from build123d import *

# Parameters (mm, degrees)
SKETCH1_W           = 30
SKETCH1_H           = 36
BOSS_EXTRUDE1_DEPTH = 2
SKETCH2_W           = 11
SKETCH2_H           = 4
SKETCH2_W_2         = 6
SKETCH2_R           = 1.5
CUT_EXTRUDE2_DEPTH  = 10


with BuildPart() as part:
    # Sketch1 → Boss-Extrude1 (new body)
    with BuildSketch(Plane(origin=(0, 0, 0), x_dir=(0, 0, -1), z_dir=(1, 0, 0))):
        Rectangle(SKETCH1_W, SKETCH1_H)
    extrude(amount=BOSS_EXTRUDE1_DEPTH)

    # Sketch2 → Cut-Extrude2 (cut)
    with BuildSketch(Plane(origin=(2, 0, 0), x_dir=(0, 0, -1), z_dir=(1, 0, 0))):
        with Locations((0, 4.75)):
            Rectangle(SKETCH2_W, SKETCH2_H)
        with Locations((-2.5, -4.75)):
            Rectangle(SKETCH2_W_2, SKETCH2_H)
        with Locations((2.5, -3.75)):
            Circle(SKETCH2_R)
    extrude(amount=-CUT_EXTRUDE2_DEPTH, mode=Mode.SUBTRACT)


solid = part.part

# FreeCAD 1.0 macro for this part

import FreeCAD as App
import Part
import Sketcher

V = App.Vector

doc = App.newDocument("Part")
params = doc.addObject("Spreadsheet::Sheet", "Params")
for row, (alias, value) in enumerate([
    ("sketch1_width", "36 mm"),
    ("sketch1_height", "30 mm"),
    ("pad1_length", "2 mm"),
    ("sketch2_diameter", "3 mm"),
    ("sketch2_width", "4 mm"),
    ("sketch2_height", "11 mm"),
    ("sketch2_height2", "6 mm"),
    ("pocket1_length", "10 mm"),
], start=1):
    params.set(f"A{row}", alias)
    params.set(f"B{row}", "=" + value)
    params.setAlias(f"B{row}", alias)

body = doc.addObject("PartDesign::Body", "Body")

# Sketch on YZ plane
sketch1 = doc.addObject("Sketcher::SketchObject", "Sketch")
body.addObject(sketch1)
sketch1.AttachmentSupport = (doc.YZ_Plane, [""])
sketch1.MapMode = "FlatFace"
sketch1.addGeometry(Part.LineSegment(V(18, 15, 0), V(-18, 15, 0)), False)
sketch1.addGeometry(Part.LineSegment(V(-18, 15, 0), V(-18, -15, 0)), False)
sketch1.addGeometry(Part.LineSegment(V(-18, -15, 0), V(18, -15, 0)), False)
sketch1.addGeometry(Part.LineSegment(V(18, -15, 0), V(18, 15, 0)), False)
sketch1.addConstraint(Sketcher.Constraint("Coincident", 0, 2, 1, 1))
sketch1.addConstraint(Sketcher.Constraint("Coincident", 1, 2, 2, 1))
sketch1.addConstraint(Sketcher.Constraint("Coincident", 2, 2, 3, 1))
sketch1.addConstraint(Sketcher.Constraint("Coincident", 3, 2, 0, 1))
sketch1.addConstraint(Sketcher.Constraint("Horizontal", 0))
sketch1.addConstraint(Sketcher.Constraint("Vertical", 1))
sketch1.addConstraint(Sketcher.Constraint("Horizontal", 2))
sketch1.addConstraint(Sketcher.Constraint("Vertical", 3))
sketch1.addConstraint(Sketcher.Constraint("Symmetric", 0, 2, 2, 2, -1, 1))
sketch1.addConstraint(Sketcher.Constraint("DistanceX", 0, 2, 0, 1, 36.0))
sketch1.addConstraint(Sketcher.Constraint("DistanceY", 1, 2, 1, 1, 30.0))
sketch1.setExpression("Constraints[9]", "Params.sketch1_width")
sketch1.setExpression("Constraints[10]", "Params.sketch1_height")
pad1 = doc.addObject("PartDesign::Pad", "Pad")
body.addObject(pad1)
pad1.Profile = sketch1
pad1.setExpression("Length", "Params.pad1_length")

# Sketch on YZ plane
sketch2 = doc.addObject("Sketcher::SketchObject", "Sketch001")
body.addObject(sketch2)
sketch2.AttachmentSupport = (doc.YZ_Plane, [""])
sketch2.MapMode = "FlatFace"
sketch2.AttachmentOffset = App.Placement(V(0, 0, 2), App.Rotation())
sketch2.addGeometry(Part.LineSegment(V(6.8, 5.5, 0), V(2.8, 5.5, 0)), False)
sketch2.addGeometry(Part.LineSegment(V(2.8, 5.5, 0), V(2.8, -5.5, 0)), False)
sketch2.addGeometry(Part.LineSegment(V(2.8, -5.5, 0), V(6.8, -5.5, 0)), False)
sketch2.addGeometry(Part.LineSegment(V(6.8, -5.5, 0), V(6.8, 5.5, 0)), False)
sketch2.addGeometry(Part.LineSegment(V(-2.8, 5.5, 0), V(-6.8, 5.5, 0)), False)
sketch2.addGeometry(Part.LineSegment(V(-6.8, 5.5, 0), V(-6.8, -0.5, 0)), False)
sketch2.addGeometry(Part.LineSegment(V(-6.8, -0.5, 0), V(-2.8, -0.5, 0)), False)
sketch2.addGeometry(Part.LineSegment(V(-2.8, -0.5, 0), V(-2.8, 5.5, 0)), False)
sketch2.addGeometry(Part.Circle(V(-3.8, -2.5, 0), V(0, 0, 1), 1.5), False)
sketch2.addConstraint(Sketcher.Constraint("Coincident", 0, 2, 1, 1))
sketch2.addConstraint(Sketcher.Constraint("Coincident", 1, 2, 2, 1))
sketch2.addConstraint(Sketcher.Constraint("Coincident", 2, 2, 3, 1))
sketch2.addConstraint(Sketcher.Constraint("Coincident", 3, 2, 0, 1))
sketch2.addConstraint(Sketcher.Constraint("Coincident", 4, 2, 5, 1))
sketch2.addConstraint(Sketcher.Constraint("Coincident", 5, 2, 6, 1))
sketch2.addConstraint(Sketcher.Constraint("Coincident", 6, 2, 7, 1))
sketch2.addConstraint(Sketcher.Constraint("Coincident", 7, 2, 4, 1))
sketch2.addConstraint(Sketcher.Constraint("Horizontal", 0))
sketch2.addConstraint(Sketcher.Constraint("Vertical", 1))
sketch2.addConstraint(Sketcher.Constraint("Horizontal", 2))
sketch2.addConstraint(Sketcher.Constraint("Vertical", 3))
sketch2.addConstraint(Sketcher.Constraint("Horizontal", 4))
sketch2.addConstraint(Sketcher.Constraint("Vertical", 5))
sketch2.addConstraint(Sketcher.Constraint("Horizontal", 6))
sketch2.addConstraint(Sketcher.Constraint("Vertical", 7))
sketch2.addConstraint(Sketcher.Constraint("Symmetric", 2, 2, 4, 2, -1, 1))
sketch2.addConstraint(Sketcher.Constraint("Symmetric", 0, 2, 7, 2, -2))
sketch2.addConstraint(Sketcher.Constraint("Diameter", 8, 3.0))
sketch2.addConstraint(Sketcher.Constraint("DistanceX", 0, 2, 0, 1, 4.0))
sketch2.addConstraint(Sketcher.Constraint("DistanceY", 1, 2, 1, 1, 11.0))
sketch2.addConstraint(Sketcher.Constraint("DistanceY", 5, 2, 5, 1, 6.0))
sketch2.addConstraint(Sketcher.Constraint("DistanceY", 8, 3, 0, 2, 8.0))
sketch2.addConstraint(Sketcher.Constraint("DistanceX", 4, 2, 8, 3, 3.0))
sketch2.addConstraint(Sketcher.Constraint("DistanceX", 8, 3, 0, 2, 6.5))
sketch2.setExpression("Constraints[18]", "Params.sketch2_diameter")
sketch2.setExpression("Constraints[19]", "Params.sketch2_width")
sketch2.setExpression("Constraints[20]", "Params.sketch2_height")
sketch2.setExpression("Constraints[21]", "Params.sketch2_height2")
pocket1 = doc.addObject("PartDesign::Pocket", "Pocket")
body.addObject(pocket1)
pocket1.Profile = sketch2
pocket1.setExpression("Length", "Params.pocket1_length")

doc.recompute()
